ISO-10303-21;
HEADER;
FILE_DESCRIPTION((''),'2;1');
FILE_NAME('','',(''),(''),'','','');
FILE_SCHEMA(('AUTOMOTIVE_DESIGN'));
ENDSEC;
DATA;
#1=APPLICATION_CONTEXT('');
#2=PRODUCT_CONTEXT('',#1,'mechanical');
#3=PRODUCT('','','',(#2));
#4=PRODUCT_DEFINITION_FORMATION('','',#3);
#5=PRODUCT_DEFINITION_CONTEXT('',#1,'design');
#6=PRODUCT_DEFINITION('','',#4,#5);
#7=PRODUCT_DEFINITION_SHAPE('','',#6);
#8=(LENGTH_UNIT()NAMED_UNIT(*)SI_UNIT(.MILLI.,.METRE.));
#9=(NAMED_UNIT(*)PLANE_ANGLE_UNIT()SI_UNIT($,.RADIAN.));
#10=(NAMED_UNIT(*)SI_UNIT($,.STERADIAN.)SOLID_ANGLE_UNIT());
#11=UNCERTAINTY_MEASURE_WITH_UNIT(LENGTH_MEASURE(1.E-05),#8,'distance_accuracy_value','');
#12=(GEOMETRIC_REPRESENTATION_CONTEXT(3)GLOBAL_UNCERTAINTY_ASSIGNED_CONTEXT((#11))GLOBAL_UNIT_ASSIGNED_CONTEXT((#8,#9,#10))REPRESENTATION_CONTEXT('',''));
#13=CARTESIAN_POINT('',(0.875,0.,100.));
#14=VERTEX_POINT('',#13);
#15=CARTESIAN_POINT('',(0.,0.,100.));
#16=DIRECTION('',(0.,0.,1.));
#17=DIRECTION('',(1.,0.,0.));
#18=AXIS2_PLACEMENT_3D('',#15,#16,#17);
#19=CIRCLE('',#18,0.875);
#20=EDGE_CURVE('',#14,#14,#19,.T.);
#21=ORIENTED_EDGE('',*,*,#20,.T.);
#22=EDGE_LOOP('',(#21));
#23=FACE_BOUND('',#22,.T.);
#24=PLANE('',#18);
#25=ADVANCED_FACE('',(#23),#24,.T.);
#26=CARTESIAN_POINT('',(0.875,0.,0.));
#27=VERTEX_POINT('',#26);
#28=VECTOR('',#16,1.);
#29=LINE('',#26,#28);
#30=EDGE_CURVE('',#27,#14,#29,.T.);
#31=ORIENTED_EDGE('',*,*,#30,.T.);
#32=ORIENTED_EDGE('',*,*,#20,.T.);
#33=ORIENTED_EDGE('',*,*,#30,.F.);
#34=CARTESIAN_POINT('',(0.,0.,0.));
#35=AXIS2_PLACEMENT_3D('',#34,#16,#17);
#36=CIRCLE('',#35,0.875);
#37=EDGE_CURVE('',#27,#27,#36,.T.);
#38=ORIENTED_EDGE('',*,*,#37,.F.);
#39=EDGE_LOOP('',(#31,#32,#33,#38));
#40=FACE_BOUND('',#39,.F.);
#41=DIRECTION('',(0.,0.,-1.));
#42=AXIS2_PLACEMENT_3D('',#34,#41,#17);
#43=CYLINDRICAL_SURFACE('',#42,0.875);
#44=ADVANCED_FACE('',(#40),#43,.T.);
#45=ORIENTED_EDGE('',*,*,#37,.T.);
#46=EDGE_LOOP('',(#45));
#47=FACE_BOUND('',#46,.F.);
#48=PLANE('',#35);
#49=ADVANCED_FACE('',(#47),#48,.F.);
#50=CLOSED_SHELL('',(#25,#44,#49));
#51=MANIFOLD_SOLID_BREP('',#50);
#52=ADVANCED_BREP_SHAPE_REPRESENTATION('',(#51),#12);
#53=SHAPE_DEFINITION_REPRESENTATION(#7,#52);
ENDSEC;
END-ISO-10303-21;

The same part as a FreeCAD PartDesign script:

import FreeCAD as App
import Part
import Sketcher
Q = App.Units.Quantity

doc = App.newDocument("Part")
body = doc.addObject("PartDesign::Body", "Body")

# Sketch on XY plane
sketch1 = body.newObject("Sketcher::SketchObject", "Sketch")
sketch1.AttachmentSupport = (doc.getObject("XY_Plane"), [""])
sketch1.MapMode = "FlatFace"
sketch1.addGeometry(Part.Circle(App.Vector(0, 0, 0), App.Vector(0, 0, 1), 0.9), False)
sketch1.addConstraint([
    Sketcher.Constraint("Coincident", 0, 3, -1, 1),
    Sketcher.Constraint("Diameter", 0, Q("0.0689 in")),
])
pad1 = body.newObject("PartDesign::Pad", "Pad")
pad1.Profile = sketch1
pad1.Length = Q("3.9370079 in")

doc.recompute()
